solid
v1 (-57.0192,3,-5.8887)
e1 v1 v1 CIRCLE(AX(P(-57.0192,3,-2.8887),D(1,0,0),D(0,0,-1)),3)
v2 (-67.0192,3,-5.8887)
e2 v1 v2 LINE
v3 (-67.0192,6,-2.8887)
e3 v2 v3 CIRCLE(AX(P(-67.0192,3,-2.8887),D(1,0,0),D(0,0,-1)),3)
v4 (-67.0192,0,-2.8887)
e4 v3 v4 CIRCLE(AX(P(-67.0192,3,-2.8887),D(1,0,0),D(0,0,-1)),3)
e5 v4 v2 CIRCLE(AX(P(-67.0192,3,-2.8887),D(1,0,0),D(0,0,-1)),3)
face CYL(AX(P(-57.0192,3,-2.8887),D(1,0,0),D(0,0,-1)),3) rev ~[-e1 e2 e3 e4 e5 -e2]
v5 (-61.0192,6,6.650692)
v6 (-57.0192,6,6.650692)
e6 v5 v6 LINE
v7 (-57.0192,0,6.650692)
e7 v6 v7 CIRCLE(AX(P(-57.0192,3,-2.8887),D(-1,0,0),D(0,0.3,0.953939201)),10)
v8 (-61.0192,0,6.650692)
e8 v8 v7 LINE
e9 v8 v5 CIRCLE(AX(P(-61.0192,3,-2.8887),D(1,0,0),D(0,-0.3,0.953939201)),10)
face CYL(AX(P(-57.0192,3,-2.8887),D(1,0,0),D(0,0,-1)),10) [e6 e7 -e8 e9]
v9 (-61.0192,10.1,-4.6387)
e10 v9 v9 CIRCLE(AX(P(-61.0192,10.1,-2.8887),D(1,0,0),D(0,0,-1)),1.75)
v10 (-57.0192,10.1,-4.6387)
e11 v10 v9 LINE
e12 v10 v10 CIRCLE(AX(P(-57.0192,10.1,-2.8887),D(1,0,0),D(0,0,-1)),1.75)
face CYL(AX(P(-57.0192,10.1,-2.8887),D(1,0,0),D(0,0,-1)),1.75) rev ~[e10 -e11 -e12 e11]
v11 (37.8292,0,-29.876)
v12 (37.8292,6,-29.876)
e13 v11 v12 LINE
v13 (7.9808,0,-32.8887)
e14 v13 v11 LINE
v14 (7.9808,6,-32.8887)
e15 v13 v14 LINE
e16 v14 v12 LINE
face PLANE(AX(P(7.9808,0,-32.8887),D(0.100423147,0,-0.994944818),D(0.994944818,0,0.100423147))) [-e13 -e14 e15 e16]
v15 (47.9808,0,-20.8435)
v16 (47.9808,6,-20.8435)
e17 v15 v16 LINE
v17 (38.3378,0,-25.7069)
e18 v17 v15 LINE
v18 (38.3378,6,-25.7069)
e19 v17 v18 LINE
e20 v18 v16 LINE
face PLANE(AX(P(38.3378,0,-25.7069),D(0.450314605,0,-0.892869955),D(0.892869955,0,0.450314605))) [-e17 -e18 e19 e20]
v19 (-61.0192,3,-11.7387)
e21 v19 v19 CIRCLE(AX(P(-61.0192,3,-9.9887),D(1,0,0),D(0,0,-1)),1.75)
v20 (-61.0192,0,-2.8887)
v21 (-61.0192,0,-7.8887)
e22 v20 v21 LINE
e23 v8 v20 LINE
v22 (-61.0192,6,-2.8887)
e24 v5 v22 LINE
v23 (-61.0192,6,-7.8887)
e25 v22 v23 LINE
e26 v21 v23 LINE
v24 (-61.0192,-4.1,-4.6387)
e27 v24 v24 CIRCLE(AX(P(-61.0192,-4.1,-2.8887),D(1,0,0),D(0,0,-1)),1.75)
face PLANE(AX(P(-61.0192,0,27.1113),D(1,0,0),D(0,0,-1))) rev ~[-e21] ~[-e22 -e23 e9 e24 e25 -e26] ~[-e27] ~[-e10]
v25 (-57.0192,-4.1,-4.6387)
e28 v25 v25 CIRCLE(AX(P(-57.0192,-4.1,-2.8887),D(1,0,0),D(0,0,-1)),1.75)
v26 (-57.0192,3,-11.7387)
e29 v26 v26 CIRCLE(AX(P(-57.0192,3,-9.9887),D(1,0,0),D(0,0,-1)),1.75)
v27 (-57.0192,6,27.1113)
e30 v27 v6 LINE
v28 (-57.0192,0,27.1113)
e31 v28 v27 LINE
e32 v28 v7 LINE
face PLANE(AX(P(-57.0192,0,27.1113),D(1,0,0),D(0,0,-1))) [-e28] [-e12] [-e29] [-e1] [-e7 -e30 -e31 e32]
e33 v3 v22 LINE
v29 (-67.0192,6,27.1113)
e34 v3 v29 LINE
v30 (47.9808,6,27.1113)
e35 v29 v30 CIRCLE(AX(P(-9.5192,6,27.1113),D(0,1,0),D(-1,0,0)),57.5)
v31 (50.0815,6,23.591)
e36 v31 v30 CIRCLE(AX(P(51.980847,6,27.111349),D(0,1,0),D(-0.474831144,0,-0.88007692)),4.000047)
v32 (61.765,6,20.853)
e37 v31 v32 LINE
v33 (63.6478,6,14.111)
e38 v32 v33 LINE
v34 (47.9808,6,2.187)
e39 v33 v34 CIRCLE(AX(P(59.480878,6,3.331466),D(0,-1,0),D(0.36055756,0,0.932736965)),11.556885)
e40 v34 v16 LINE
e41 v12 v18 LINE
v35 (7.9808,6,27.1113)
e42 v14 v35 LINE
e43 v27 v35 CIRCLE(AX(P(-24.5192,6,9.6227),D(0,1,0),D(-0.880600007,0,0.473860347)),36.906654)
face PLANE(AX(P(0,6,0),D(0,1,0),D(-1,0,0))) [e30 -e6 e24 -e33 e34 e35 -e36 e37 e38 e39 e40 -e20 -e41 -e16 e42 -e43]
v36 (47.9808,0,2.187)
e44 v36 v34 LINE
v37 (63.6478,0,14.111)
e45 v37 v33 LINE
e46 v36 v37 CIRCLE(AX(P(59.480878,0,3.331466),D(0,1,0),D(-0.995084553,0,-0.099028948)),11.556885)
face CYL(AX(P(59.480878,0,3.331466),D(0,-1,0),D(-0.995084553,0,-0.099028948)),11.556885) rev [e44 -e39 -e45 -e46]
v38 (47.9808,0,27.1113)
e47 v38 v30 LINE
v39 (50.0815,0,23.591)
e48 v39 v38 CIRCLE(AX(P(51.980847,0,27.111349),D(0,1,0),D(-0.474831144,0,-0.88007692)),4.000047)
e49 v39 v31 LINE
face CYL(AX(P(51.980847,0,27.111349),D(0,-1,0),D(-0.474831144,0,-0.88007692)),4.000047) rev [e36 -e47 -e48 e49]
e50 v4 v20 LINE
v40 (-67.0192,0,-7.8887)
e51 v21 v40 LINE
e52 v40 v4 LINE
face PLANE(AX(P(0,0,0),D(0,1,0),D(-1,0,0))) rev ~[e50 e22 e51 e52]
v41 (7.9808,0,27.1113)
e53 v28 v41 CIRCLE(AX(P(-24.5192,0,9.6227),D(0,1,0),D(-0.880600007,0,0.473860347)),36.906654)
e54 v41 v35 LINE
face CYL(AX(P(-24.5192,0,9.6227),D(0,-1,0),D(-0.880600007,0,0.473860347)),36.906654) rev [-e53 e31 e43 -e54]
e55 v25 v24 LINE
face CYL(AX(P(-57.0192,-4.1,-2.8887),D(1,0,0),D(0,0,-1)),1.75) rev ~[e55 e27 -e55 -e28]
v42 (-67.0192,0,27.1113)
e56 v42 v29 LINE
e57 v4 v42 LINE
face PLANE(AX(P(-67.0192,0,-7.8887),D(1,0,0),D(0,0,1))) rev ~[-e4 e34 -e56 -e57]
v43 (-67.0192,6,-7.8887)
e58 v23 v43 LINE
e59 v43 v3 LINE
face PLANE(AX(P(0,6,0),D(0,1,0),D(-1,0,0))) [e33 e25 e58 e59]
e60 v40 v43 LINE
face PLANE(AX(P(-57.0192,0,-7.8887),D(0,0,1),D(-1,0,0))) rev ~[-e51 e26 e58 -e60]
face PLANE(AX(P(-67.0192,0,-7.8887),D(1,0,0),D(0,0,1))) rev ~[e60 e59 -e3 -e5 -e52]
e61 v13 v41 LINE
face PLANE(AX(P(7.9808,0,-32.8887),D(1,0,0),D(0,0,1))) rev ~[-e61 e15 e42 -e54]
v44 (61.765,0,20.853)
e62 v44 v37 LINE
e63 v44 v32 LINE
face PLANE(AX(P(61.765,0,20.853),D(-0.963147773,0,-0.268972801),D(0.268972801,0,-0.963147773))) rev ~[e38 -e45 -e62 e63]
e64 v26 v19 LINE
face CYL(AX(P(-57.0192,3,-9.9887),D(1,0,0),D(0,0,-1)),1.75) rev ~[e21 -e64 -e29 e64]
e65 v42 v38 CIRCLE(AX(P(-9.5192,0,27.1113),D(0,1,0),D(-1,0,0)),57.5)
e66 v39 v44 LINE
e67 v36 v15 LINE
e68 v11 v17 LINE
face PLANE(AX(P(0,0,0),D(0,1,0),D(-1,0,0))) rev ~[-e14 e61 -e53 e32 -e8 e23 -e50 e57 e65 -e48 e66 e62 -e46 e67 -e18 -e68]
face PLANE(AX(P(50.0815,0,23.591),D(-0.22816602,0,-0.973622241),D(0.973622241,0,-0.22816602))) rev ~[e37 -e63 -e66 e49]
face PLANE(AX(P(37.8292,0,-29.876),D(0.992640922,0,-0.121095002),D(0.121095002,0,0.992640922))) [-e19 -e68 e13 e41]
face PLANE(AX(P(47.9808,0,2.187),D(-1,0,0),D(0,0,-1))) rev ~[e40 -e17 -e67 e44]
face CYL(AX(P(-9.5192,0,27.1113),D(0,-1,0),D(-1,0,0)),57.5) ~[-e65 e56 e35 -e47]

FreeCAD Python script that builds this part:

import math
import FreeCAD as App
import Part
import Sketcher
from FreeCAD import Vector
Q = App.Units.Quantity

doc = App.newDocument("Part")
body = doc.addObject("PartDesign::Body", "Body")

sketch1 = body.newObject("Sketcher::SketchObject", "Sketch")
sketch1.AttachmentSupport = (doc.getObject("XZ_Plane"), [""])
sketch1.MapMode = "FlatFace"
sketch1.addGeometry([
    Part.ArcOfCircle(Part.Circle(Vector(-24.5, 9.6, 0), Vector(0, 0, 1), 36.9), math.radians(28), math.radians(152)),
    Part.LineSegment(Vector(-57, 27.1, 0), Vector(-57, -7.9, 0)),
    Part.LineSegment(Vector(-57, -7.9, 0), Vector(-67, -7.9, 0)),
    Part.LineSegment(Vector(-67, -7.9, 0), Vector(-67, 27.1, 0)),
    Part.ArcOfCircle(Part.Circle(Vector(-9.5, 27.1, 0), Vector(0, 0, 1), 57.5), math.radians(0), math.radians(180)),
    Part.ArcOfCircle(Part.Circle(Vector(52, 27.1, 0), Vector(0, 0, 1), 4), math.radians(180), math.radians(242)),
    Part.LineSegment(Vector(50.1, 23.6, 0), Vector(61.8, 20.9, 0)),
    Part.LineSegment(Vector(61.8, 20.9, 0), Vector(63.6, 14.1, 0)),
    Part.ArcOfCircle(Part.Circle(Vector(59.5, 3.3, 0), Vector(0, 0, 1), 11.6), math.radians(69), math.radians(186)),
    Part.LineSegment(Vector(48, 2.2, 0), Vector(48, -20.8, 0)),
    Part.LineSegment(Vector(48, -20.8, 0), Vector(38.3, -25.7, 0)),
    Part.LineSegment(Vector(38.3, -25.7, 0), Vector(37.8, -29.9, 0)),
    Part.LineSegment(Vector(37.8, -29.9, 0), Vector(8, -32.9, 0)),
    Part.LineSegment(Vector(8, -32.9, 0), Vector(8, 27.1, 0)),
], False)
sketch1.addConstraint([
    Sketcher.Constraint("Coincident", 0, 2, 1, 1),
    Sketcher.Constraint("Coincident", 1, 2, 2, 1),
    Sketcher.Constraint("Coincident", 2, 2, 3, 1),
    Sketcher.Constraint("Tangent", 3, 2, 4, 2),
    Sketcher.Constraint("Tangent", 4, 1, 5, 1),
    Sketcher.Constraint("Coincident", 5, 2, 6, 1),
    Sketcher.Constraint("Coincident", 6, 2, 7, 1),
    Sketcher.Constraint("Coincident", 7, 2, 8, 1),
    Sketcher.Constraint("Coincident", 8, 2, 9, 1),
    Sketcher.Constraint("Coincident", 9, 2, 10, 1),
    Sketcher.Constraint("Coincident", 10, 2, 11, 1),
    Sketcher.Constraint("Coincident", 11, 2, 12, 1),
    Sketcher.Constraint("Coincident", 12, 2, 13, 1),
    Sketcher.Constraint("Coincident", 13, 2, 0, 1),
    Sketcher.Constraint("Vertical", 1),
    Sketcher.Constraint("Horizontal", 2),
    Sketcher.Constraint("Vertical", 3),
    Sketcher.Constraint("Vertical", 9),
    Sketcher.Constraint("Vertical", 13),
    Sketcher.Constraint("Horizontal", 4, 3, 5, 3),
    Sketcher.Constraint("Horizontal", 5, 3, 0, 2),
    Sketcher.Constraint("Horizontal", 4, 1, 13, 2),
    Sketcher.Constraint("Vertical", 4, 1, 8, 2),
    Sketcher.Constraint("Radius", 5, Q("4 mm")),
    Sketcher.Constraint("DistanceX", 2, 2, 2, 1, Q("10 mm")),
    Sketcher.Constraint("DistanceY", 1, 2, 1, 1, Q("35 mm")),
    Sketcher.Constraint("DistanceY", 13, 1, 13, 2, Q("60 mm")),
    Sketcher.Constraint("Distance", 6, Q("12 mm")),
    Sketcher.Constraint("Distance", 7, Q("7 mm")),
    Sketcher.Constraint("Distance", 12, Q("30 mm")),
    Sketcher.Constraint("DistanceX", 12, 2, 9, 2, Q("40 mm")),
    Sketcher.Constraint("Distance", 10, Q("10.8 mm")),
    Sketcher.Constraint("Distance", 11, Q("4.2 mm")),
    Sketcher.Constraint("Radius", 0, Q("36.9067 mm")),
    Sketcher.Constraint("Radius", 4, Q("57.5 mm")),
    Sketcher.Constraint("Radius", 8, Q("11.5568 mm")),
    Sketcher.Constraint("DistanceX", 4, 1, 8, 3, Q("11.5 mm")),
    Sketcher.Constraint("DistanceY", 1, 2, -1, 1, Q("7.8887 mm")),
    Sketcher.Constraint("DistanceX", 2, 2, -1, 1, Q("67.0192 mm")),
    Sketcher.Constraint("Angle", 6, Q("-13.1891 deg")),
    Sketcher.Constraint("DistanceY", 7, 2, 5, 2, Q("9.48 mm")),
    Sketcher.Constraint("DistanceX", 10, 2, 7, 2, Q("25.31 mm")),
    Sketcher.Constraint("DistanceY", 9, 2, 9, 1, Q("23.0305 mm")),
    Sketcher.Constraint("DistanceY", -1, 1, 5, 2, Q("23.591 mm")),
])
pad1 = body.newObject("PartDesign::Pad", "Pad")
pad1.Profile = sketch1
pad1.Length = 6
pad1.Reversed = True

sketch2 = body.newObject("Sketcher::SketchObject", "Sketch001")
sketch2.AttachmentSupport = (doc.getObject("YZ_Plane"), [""])
sketch2.MapMode = "FlatFace"
sketch2.AttachmentOffset = App.Placement(Vector(0, 0, -57.0192), App.Rotation())
sketch2.addGeometry([
    Part.Circle(Vector(3, -2.9, 0), Vector(0, 0, 1), 10),
    Part.Circle(Vector(-4.1, -2.9, 0), Vector(0, 0, 1), 1.8),
    Part.Circle(Vector(3, -2.9, 0), Vector(0, 0, 1), 1.6),
    Part.Circle(Vector(3, -10, 0), Vector(0, 0, 1), 1.8),
    Part.Circle(Vector(10.1, -2.9, 0), Vector(0, 0, 1), 1.8),
], False)
sketch2.addConstraint([
    Sketcher.Constraint("Coincident", 2, 3, 0, 3),
    Sketcher.Constraint("Equal", 1, 3),
    Sketcher.Constraint("Equal", 3, 4),
    Sketcher.Constraint("Horizontal", 0, 3, 1, 3),
    Sketcher.Constraint("Horizontal", 2, 3, 4, 3),
    Sketcher.Constraint("Vertical", 2, 3, 3, 3),
    Sketcher.Constraint("Diameter", 0, Q("20 mm")),
    Sketcher.Constraint("Diameter", 1, Q("3.5 mm")),
    Sketcher.Constraint("Diameter", 2, Q("3.3 mm")),
    Sketcher.Constraint("DistanceX", -1, 1, 0, 3, Q("3 mm")),
    Sketcher.Constraint("DistanceX", 1, 3, -1, 1, Q("4.1 mm")),
    Sketcher.Constraint("DistanceX", -1, 1, 4, 3, Q("10.1 mm")),
    Sketcher.Constraint("DistanceY", 3, 3, 0, 3, Q("7.1 mm")),
    Sketcher.Constraint("DistanceY", 0, 3, -1, 1, Q("2.8887 mm")),
])
pad2 = body.newObject("PartDesign::Pad", "Pad001")
pad2.Profile = sketch2
pad2.Length = 4
pad2.Reversed = True

sketch3 = body.newObject("Sketcher::SketchObject", "Sketch002")
sketch3.AttachmentSupport = (doc.getObject("YZ_Plane"), [""])
sketch3.MapMode = "FlatFace"
sketch3.AttachmentOffset = App.Placement(Vector(0, 0, -57.0192), App.Rotation())
sketch3.addGeometry(Part.Circle(Vector(3, -2.9, 0), Vector(0, 0, 1), 3), False)
sketch3.addConstraint([
    Sketcher.Constraint("Diameter", 0, Q("6 mm")),
    Sketcher.Constraint("DistanceX", -1, 1, 0, 3, Q("3 mm")),
    Sketcher.Constraint("DistanceY", 0, 3, -1, 1, Q("2.8887 mm")),
])
pocket1 = body.newObject("PartDesign::Pocket", "Pocket")
pocket1.Profile = sketch3
pocket1.Type = "ThroughAll"

doc.recompute()
